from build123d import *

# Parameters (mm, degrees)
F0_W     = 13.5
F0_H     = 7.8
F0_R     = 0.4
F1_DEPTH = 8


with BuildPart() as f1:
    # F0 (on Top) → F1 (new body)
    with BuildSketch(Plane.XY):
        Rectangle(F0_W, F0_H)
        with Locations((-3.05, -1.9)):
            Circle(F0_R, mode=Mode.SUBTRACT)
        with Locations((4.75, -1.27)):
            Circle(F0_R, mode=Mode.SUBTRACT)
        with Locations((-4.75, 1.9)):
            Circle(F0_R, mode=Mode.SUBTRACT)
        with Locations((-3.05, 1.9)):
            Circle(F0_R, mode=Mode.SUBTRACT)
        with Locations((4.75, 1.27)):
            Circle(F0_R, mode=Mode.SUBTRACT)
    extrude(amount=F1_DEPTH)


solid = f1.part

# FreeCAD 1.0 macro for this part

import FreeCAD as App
import Part
import Sketcher
from FreeCAD import Vector
Q = App.Units.Quantity

doc = App.newDocument("Part")
body = doc.addObject("PartDesign::Body", "Body")

sketch1 = body.newObject("Sketcher::SketchObject", "Sketch")
sketch1.AttachmentSupport = (doc.getObject("XY_Plane"), [""])
sketch1.MapMode = "FlatFace"
sketch1.addGeometry([
    Part.LineSegment(Vector(-6.75, 3.9, 0), Vector(-6.75, -3.9, 0)),
    Part.LineSegment(Vector(-6.75, -3.9, 0), Vector(6.75, -3.9, 0)),
    Part.LineSegment(Vector(6.75, -3.9, 0), Vector(6.75, 3.9, 0)),
    Part.LineSegment(Vector(6.75, 3.9, 0), Vector(-6.75, 3.9, 0)),
    Part.Circle(Vector(-3.05, -1.9, 0), Vector(0, 0, 1), 0.4),
    Part.Circle(Vector(4.75, -1.27, 0), Vector(0, 0, 1), 0.4),
    Part.Circle(Vector(-4.75, 1.9, 0), Vector(0, 0, 1), 0.4),
    Part.Circle(Vector(-3.05, 1.9, 0), Vector(0, 0, 1), 0.4),
    Part.Circle(Vector(4.75, 1.27, 0), Vector(0, 0, 1), 0.4),
], False)
sketch1.addConstraint([
    Sketcher.Constraint("Coincident", 0, 2, 1, 1),
    Sketcher.Constraint("Coincident", 1, 2, 2, 1),
    Sketcher.Constraint("Coincident", 2, 2, 3, 1),
    Sketcher.Constraint("Coincident", 3, 2, 0, 1),
    Sketcher.Constraint("Vertical", 0),
    Sketcher.Constraint("Horizontal", 1),
    Sketcher.Constraint("Vertical", 2),
    Sketcher.Constraint("Horizontal", 3),
    Sketcher.Constraint("Equal", 4, 5),
    Sketcher.Constraint("Equal", 5, 6),
    Sketcher.Constraint("Equal", 6, 7),
    Sketcher.Constraint("Equal", 7, 8),
    Sketcher.Constraint("Symmetric", 0, 2, 2, 2, -1, 1),
    Sketcher.Constraint("Symmetric", 4, 3, 7, 3, -1),
    Sketcher.Constraint("Symmetric", 5, 3, 8, 3, -1),
    Sketcher.Constraint("Horizontal", 6, 3, 7, 3),
    Sketcher.Constraint("Diameter", 4, Q("0.8 mm")),
    Sketcher.Constraint("DistanceX", 1, 1, 1, 2, Q("13.5 mm")),
    Sketcher.Constraint("DistanceY", 0, 2, 0, 1, Q("7.8 mm")),
    Sketcher.Constraint("DistanceY", 0, 2, 4, 3, Q("2 mm")),
    Sketcher.Constraint("DistanceX", 0, 2, 6, 3, Q("2 mm")),
    Sketcher.Constraint("DistanceX", 5, 3, 1, 2, Q("2 mm")),
    Sketcher.Constraint("DistanceX", 4, 3, 5, 3, Q("7.8 mm")),
    Sketcher.Constraint("DistanceY", 5, 3, -1, 1, Q("1.27 mm")),
])
pad1 = body.newObject("PartDesign::Pad", "Pad")
pad1.Profile = sketch1
pad1.Length = 8

doc.recompute()
